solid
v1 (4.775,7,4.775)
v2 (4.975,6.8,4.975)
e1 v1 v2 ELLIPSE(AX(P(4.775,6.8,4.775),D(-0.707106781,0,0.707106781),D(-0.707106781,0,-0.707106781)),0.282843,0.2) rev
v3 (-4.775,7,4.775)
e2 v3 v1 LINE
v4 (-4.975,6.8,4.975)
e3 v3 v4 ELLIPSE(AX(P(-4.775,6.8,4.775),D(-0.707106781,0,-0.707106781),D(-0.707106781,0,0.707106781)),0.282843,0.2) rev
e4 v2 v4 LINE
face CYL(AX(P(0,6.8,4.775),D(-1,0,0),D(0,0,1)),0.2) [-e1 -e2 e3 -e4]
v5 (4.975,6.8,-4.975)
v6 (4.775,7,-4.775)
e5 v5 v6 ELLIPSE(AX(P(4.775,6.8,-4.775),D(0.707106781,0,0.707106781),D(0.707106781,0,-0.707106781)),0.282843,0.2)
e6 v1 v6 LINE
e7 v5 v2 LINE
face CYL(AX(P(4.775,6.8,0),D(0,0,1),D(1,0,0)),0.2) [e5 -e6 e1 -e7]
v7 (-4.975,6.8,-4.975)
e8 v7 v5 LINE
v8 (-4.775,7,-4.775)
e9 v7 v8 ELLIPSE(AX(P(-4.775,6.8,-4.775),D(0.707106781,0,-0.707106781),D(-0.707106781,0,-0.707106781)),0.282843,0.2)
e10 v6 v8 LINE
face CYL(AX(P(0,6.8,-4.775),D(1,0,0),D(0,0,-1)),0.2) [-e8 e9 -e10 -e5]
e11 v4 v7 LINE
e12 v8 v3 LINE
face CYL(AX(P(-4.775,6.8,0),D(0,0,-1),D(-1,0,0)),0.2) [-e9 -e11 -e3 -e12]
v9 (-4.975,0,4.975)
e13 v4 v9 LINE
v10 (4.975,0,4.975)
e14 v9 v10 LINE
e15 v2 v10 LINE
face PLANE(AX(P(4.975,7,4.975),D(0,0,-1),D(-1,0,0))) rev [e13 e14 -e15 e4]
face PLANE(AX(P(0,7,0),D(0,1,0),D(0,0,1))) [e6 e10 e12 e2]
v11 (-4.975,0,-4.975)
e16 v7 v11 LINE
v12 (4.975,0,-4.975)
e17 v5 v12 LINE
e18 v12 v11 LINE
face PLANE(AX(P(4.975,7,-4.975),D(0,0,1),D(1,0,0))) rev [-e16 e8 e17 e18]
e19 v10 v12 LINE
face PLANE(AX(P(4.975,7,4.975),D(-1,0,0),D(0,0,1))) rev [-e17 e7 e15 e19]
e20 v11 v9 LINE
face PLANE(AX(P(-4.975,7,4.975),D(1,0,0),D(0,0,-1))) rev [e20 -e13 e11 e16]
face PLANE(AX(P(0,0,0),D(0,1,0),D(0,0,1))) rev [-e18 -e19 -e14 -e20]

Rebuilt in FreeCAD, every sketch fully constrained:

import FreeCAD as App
import Part
import Sketcher

V = App.Vector


def edges_at(feature, points):
    """Names of the edges that pass closest to the given points."""
    edges = feature.Shape.Edges
    near = lambda p: min(range(len(edges)), key=lambda i: edges[i].distToShape(Part.Vertex(*p))[0])
    return sorted({f"Edge{near(p) + 1}" for p in points})


def add_polygon(sketch, points):
    """Adds a closed chain of lines whose ends are joined by coincident constraints."""
    first, n = sketch.GeometryCount, len(points)
    for a, b in zip(points, points[1:] + points[:1]):
        sketch.addGeometry(Part.LineSegment(App.Vector(*a, 0), App.Vector(*b, 0)), False)
    for i in range(n):
        sketch.addConstraint(Sketcher.Constraint("Coincident", first + i, 2, first + (i + 1) % n, 1))

doc = App.newDocument("Part")
body = doc.addObject("PartDesign::Body", "Body")

# Sketch on XZ plane
sketch1 = doc.addObject("Sketcher::SketchObject", "Sketch")
body.addObject(sketch1)
sketch1.AttachmentSupport = (doc.XZ_Plane, [""])
sketch1.MapMode = "FlatFace"
add_polygon(sketch1, [(-5, -5), (-5, 5), (5, 5), (5, -5)])  # lines 0-3
sketch1.addConstraint([
    Sketcher.Constraint("Vertical", 0),
    Sketcher.Constraint("Horizontal", 1),
    Sketcher.Constraint("Vertical", 2),
    Sketcher.Constraint("Horizontal", 3),
    Sketcher.Constraint("Symmetric", 0, 2, 2, 2, -1, 1),
    Sketcher.Constraint("Equal", 3, 0),
    Sketcher.Constraint("DistanceX", 1, 1, 1, 2, 9.95),
])
pad1 = doc.addObject("PartDesign::Pad", "Pad")
body.addObject(pad1)
pad1.Profile = sketch1
pad1.Length = 7
pad1.Reversed = True
doc.recompute()

fillet = doc.addObject("PartDesign::Fillet", "Fillet")
body.addObject(fillet)
fillet.Base = (pad1, edges_at(pad1, [
    (4.975, 7, 0),
    (0, 7, -4.975),
    (-4.975, 7, 0),
    (0, 7, 4.975),
]))
fillet.Radius = 0.2

doc.recompute()
